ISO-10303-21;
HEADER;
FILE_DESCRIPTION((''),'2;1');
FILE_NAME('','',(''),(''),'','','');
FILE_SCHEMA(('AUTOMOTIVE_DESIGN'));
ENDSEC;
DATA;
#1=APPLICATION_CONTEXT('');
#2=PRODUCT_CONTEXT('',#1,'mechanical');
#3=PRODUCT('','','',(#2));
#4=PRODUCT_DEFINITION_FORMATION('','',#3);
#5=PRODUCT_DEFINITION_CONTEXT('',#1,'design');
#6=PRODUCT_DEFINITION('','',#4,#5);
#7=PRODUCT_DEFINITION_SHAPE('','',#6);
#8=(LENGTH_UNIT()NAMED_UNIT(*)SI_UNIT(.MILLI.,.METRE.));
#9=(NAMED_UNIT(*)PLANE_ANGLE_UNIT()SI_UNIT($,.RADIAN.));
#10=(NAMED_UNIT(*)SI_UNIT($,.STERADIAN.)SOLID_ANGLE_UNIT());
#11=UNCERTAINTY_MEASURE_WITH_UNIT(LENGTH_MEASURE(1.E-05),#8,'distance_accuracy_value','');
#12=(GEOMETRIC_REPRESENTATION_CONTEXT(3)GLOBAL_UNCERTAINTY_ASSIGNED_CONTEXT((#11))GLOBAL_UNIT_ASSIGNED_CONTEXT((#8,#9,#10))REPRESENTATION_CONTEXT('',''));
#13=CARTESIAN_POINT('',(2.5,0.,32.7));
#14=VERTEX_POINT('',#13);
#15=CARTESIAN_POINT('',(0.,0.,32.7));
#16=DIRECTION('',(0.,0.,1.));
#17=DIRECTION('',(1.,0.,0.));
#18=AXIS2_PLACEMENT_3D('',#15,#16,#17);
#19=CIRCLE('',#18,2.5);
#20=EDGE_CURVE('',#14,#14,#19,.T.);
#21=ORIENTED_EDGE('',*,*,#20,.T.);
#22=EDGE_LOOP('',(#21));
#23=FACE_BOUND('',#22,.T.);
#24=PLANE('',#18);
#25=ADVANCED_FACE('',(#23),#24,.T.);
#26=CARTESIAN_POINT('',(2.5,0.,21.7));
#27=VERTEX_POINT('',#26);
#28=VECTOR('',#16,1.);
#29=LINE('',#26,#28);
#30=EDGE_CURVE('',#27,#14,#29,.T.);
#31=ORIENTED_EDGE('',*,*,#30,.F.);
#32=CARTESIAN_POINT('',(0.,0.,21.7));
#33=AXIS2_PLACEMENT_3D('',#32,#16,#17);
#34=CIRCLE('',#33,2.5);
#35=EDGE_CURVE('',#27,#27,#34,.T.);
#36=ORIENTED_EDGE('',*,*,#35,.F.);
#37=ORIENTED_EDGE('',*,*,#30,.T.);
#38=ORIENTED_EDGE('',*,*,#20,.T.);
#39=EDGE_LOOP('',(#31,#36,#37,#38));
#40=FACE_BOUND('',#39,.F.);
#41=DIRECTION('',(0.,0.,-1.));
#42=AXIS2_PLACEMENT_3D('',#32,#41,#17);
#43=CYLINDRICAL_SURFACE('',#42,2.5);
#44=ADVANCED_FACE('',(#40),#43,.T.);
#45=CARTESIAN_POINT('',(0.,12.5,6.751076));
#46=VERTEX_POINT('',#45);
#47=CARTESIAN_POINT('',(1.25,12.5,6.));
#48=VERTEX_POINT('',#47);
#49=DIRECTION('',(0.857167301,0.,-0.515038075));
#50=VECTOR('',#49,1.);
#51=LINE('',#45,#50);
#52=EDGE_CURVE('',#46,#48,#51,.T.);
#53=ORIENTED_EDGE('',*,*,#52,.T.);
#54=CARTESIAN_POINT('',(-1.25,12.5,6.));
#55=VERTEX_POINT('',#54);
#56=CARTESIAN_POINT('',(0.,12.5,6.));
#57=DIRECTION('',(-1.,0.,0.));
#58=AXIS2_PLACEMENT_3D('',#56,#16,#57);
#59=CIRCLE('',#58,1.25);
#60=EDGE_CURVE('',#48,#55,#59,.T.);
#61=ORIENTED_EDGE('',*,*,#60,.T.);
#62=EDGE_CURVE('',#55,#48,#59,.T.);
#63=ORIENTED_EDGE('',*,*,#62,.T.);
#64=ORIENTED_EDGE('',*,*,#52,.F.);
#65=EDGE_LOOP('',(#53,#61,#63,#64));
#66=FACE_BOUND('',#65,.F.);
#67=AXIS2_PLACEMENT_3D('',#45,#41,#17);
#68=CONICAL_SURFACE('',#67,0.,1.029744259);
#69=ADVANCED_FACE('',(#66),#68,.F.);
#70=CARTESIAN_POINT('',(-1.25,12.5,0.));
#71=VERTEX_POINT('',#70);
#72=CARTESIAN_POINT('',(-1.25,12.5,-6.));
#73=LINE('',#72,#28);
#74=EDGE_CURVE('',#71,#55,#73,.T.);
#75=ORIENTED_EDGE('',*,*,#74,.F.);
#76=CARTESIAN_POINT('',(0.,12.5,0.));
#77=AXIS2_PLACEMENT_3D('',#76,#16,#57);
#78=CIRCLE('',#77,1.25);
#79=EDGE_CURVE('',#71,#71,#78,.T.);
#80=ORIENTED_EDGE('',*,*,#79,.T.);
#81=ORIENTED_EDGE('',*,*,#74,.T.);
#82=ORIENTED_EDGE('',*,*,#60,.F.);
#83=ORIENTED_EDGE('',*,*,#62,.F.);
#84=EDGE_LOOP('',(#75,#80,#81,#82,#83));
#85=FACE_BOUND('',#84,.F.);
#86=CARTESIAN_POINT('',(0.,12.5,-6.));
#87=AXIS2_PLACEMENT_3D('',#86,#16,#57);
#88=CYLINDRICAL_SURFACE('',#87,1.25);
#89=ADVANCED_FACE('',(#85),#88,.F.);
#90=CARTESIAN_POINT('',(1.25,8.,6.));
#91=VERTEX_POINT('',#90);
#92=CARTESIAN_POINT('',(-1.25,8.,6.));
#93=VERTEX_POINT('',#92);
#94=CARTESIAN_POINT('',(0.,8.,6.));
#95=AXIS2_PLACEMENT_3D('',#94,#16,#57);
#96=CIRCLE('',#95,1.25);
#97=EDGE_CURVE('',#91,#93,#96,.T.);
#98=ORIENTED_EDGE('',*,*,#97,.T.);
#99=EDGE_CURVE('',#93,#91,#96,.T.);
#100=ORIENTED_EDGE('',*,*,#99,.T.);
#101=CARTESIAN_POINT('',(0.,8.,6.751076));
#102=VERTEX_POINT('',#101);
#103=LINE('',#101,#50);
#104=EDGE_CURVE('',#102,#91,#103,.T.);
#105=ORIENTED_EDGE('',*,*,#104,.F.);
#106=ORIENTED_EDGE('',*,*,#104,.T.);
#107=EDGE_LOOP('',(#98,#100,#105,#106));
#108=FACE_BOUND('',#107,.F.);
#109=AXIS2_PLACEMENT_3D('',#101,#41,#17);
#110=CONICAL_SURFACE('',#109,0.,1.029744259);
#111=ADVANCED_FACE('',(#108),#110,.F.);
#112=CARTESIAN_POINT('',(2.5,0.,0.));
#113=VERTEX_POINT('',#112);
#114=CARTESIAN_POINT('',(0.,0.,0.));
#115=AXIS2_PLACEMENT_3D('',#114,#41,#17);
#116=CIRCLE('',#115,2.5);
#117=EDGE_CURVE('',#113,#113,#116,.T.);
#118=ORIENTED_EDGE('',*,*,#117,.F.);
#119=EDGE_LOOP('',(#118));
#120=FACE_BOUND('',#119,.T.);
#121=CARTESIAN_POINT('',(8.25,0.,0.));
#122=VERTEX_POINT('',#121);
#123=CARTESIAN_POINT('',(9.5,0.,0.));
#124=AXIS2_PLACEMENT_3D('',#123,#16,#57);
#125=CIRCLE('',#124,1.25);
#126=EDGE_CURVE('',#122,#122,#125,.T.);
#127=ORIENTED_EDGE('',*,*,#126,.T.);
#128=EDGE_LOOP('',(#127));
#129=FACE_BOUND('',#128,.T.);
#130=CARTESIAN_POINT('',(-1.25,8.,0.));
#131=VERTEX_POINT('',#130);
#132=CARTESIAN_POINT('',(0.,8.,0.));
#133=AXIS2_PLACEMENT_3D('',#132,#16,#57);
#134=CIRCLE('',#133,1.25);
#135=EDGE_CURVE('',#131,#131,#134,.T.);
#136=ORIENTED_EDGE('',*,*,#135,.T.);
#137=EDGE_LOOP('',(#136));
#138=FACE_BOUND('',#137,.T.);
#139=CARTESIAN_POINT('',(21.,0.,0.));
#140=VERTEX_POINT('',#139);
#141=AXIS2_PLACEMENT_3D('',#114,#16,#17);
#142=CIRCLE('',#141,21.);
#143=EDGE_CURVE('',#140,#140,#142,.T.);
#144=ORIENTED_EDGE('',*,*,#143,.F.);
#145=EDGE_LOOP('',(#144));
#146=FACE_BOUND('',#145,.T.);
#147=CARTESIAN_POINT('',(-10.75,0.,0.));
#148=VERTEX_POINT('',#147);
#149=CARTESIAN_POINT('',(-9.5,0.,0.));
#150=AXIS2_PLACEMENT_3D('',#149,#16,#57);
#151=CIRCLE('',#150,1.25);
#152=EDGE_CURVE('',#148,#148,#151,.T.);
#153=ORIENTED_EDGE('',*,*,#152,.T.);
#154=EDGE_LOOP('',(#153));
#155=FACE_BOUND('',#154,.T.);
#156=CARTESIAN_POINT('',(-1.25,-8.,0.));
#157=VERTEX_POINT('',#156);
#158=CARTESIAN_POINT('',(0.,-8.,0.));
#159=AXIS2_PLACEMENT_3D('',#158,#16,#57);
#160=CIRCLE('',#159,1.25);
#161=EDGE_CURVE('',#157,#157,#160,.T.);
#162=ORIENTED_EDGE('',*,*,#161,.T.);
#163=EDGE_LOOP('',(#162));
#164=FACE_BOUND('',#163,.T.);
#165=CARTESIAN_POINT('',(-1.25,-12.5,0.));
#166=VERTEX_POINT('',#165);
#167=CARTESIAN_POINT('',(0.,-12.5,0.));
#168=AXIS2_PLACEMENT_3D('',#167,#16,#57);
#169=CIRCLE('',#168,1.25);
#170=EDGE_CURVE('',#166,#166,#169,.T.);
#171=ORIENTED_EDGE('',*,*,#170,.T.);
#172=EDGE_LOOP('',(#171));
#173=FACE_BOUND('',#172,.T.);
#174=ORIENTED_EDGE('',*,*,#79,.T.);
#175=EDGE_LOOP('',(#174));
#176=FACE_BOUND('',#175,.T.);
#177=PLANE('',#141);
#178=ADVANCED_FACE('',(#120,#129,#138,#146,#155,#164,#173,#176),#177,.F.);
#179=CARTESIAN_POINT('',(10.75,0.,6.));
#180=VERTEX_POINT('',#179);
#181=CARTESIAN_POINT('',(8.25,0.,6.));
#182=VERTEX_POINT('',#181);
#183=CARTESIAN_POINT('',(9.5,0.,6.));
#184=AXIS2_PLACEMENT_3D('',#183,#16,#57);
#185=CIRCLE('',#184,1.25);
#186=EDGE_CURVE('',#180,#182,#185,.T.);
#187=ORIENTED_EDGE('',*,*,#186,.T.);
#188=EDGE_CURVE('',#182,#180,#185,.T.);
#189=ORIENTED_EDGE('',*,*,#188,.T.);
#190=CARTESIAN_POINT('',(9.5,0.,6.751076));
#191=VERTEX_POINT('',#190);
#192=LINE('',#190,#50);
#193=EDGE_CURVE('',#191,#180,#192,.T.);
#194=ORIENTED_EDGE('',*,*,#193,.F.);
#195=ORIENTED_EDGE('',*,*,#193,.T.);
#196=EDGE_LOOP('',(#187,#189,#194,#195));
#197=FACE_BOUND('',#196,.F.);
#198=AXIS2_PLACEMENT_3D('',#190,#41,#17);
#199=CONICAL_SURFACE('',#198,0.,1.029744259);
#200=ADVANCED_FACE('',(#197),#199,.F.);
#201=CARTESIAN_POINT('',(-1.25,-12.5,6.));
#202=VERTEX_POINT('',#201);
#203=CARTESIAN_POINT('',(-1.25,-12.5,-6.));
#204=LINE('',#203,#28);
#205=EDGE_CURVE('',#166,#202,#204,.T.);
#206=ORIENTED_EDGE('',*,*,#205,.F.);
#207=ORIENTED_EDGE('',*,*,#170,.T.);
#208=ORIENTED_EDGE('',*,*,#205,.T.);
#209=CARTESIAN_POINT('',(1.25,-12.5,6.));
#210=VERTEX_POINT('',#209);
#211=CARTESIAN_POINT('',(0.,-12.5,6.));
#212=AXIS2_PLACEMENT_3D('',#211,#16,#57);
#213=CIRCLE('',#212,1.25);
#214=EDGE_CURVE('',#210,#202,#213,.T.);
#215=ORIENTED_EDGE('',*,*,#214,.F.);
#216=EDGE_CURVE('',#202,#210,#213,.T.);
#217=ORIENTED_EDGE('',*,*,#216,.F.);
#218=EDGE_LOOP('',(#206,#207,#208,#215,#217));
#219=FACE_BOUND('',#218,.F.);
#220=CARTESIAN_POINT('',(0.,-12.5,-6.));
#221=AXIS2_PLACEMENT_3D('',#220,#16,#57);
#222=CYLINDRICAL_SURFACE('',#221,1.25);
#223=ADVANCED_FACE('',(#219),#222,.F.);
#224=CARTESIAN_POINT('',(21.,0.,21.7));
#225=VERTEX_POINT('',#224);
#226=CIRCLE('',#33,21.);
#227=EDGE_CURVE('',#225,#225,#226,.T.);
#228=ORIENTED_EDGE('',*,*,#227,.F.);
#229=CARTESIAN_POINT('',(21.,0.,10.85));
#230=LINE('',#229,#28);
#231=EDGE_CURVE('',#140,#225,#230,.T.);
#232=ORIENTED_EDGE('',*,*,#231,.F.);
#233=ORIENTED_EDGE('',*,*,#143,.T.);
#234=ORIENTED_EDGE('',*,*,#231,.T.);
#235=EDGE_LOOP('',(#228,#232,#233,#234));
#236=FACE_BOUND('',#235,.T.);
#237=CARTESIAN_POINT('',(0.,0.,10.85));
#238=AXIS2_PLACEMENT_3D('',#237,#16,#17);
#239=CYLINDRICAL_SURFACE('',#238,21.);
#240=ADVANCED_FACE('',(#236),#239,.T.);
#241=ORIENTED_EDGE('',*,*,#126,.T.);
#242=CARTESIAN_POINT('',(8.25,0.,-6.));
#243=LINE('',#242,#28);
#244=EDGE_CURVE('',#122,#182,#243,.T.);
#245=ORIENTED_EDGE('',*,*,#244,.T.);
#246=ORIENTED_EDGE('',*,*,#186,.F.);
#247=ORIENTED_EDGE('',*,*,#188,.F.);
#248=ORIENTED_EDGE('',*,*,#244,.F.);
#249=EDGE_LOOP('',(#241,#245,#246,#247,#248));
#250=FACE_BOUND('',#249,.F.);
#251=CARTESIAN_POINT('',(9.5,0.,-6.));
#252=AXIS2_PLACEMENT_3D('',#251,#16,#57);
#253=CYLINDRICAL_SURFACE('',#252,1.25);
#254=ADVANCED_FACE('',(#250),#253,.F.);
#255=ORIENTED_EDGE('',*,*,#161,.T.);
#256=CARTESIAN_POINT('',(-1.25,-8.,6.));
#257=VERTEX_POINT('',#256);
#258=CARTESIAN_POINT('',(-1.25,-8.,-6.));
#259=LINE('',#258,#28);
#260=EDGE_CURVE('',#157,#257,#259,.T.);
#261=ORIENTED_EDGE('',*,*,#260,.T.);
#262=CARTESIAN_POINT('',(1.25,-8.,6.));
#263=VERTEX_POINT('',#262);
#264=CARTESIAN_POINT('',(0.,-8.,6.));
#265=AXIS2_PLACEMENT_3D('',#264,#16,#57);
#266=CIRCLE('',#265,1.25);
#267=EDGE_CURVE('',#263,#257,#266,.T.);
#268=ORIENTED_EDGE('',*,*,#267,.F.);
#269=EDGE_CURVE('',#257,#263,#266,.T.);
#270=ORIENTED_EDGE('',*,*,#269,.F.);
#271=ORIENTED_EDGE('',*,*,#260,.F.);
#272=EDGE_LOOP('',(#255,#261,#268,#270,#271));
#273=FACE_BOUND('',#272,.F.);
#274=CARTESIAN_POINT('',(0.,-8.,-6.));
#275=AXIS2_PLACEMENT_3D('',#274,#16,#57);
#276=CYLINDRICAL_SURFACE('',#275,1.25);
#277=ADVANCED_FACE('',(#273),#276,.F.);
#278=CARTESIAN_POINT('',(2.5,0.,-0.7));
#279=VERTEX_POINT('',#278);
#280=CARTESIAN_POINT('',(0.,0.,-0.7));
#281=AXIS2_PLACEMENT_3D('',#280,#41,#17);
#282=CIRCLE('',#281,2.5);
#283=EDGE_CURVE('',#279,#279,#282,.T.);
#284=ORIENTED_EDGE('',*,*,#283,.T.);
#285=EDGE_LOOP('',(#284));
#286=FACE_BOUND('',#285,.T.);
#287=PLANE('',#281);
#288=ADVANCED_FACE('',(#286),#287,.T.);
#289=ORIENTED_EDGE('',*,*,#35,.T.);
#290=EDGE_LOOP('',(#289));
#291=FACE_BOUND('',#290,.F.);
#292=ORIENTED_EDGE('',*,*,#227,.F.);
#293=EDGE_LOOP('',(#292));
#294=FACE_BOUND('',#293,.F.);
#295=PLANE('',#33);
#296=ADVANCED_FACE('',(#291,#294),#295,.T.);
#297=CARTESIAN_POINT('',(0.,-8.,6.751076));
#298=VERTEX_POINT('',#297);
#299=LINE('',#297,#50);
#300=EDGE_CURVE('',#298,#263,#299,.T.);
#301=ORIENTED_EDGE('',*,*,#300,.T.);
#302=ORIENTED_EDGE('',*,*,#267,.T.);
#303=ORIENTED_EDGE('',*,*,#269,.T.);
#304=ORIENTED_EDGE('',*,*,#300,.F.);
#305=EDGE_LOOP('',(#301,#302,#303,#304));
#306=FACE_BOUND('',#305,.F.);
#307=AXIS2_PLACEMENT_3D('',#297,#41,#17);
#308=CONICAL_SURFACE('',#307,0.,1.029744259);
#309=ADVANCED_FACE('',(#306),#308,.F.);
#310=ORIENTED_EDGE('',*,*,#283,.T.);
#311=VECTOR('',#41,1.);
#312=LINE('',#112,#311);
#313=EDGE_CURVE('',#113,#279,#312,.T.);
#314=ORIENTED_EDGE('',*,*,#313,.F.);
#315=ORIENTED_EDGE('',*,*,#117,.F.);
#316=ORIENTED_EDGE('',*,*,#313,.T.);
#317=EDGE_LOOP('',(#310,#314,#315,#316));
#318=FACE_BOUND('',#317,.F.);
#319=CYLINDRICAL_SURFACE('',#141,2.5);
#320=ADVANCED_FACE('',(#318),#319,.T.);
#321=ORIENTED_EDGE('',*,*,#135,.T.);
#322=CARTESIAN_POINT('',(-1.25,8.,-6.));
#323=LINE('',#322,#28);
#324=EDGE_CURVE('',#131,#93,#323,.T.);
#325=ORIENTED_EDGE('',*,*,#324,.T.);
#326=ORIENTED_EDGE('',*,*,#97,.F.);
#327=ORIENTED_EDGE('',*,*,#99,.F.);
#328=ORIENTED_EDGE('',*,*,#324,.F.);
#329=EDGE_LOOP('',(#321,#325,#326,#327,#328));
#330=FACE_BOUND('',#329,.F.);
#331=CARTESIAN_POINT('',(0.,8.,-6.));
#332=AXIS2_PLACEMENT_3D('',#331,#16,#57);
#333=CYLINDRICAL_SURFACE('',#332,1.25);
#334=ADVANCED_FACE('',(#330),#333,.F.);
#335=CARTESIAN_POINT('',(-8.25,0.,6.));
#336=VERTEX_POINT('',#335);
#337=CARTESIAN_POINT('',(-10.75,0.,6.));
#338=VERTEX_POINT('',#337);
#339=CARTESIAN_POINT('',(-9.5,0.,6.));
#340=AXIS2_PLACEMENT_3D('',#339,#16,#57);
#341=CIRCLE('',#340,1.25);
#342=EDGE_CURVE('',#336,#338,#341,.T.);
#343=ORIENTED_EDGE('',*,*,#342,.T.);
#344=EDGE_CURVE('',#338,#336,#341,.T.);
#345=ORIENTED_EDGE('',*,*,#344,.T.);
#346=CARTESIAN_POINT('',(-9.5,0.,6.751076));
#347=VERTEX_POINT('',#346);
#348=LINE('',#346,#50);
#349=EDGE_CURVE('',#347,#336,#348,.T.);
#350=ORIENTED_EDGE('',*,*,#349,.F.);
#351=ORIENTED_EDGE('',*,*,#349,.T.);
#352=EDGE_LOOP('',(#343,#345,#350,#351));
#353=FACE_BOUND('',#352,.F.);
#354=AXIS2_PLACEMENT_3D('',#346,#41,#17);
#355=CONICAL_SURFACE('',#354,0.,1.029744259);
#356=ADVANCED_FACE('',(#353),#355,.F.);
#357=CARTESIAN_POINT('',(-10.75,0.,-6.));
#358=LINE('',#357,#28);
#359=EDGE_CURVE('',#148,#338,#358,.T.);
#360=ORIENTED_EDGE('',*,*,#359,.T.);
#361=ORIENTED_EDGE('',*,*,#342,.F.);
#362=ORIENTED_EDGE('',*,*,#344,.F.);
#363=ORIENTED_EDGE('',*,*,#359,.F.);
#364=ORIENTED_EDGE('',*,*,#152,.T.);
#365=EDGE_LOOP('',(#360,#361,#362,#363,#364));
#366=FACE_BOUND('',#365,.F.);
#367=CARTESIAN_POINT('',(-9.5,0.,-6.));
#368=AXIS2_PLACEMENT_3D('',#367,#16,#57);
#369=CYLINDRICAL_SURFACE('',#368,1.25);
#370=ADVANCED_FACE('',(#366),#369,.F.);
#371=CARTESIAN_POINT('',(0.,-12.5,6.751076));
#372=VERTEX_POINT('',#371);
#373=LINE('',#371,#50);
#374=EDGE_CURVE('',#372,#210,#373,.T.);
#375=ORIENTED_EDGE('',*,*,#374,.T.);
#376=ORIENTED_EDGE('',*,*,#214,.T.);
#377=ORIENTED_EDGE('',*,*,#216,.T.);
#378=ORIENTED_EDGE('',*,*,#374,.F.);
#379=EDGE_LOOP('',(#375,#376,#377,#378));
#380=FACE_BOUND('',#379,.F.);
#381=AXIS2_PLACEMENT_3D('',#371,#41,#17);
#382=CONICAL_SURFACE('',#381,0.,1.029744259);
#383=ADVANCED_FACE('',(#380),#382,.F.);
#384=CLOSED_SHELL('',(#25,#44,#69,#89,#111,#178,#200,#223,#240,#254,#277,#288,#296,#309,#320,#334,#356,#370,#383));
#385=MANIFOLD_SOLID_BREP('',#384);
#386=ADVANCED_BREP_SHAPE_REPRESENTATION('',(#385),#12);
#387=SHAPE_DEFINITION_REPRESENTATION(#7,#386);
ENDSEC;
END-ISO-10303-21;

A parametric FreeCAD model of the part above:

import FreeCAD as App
import Part
import Sketcher

V = App.Vector
Q = App.Units.Quantity

doc = App.newDocument("Part")
body = doc.addObject("PartDesign::Body", "Body")

sketch1 = doc.addObject("Sketcher::SketchObject", "Sketch")
body.addObject(sketch1)
sketch1.AttachmentSupport = (doc.XZ_Plane, [""])
sketch1.MapMode = "FlatFace"
sketch1.addGeometry(Part.LineSegment(V(0, 22, 0), V(0, 0, 0)), False)
sketch1.addGeometry(Part.LineSegment(V(0, 0, 0), V(21, 0, 0)), False)
sketch1.addGeometry(Part.LineSegment(V(21, 0, 0), V(21, 22, 0)), False)
sketch1.addGeometry(Part.LineSegment(V(21, 22, 0), V(0, 22, 0)), False)
sketch1.addConstraint(Sketcher.Constraint("Coincident", 0, 2, 1, 1))
sketch1.addConstraint(Sketcher.Constraint("Coincident", 1, 2, 2, 1))
sketch1.addConstraint(Sketcher.Constraint("Coincident", 2, 2, 3, 1))
sketch1.addConstraint(Sketcher.Constraint("Coincident", 3, 2, 0, 1))
sketch1.addConstraint(Sketcher.Constraint("Vertical", 0))
sketch1.addConstraint(Sketcher.Constraint("Horizontal", 1))
sketch1.addConstraint(Sketcher.Constraint("Vertical", 2))
sketch1.addConstraint(Sketcher.Constraint("Horizontal", 3))
sketch1.addConstraint(Sketcher.Constraint("Coincident", 0, 2, -1, 1))
sketch1.addConstraint(Sketcher.Constraint("DistanceX", 1, 1, 1, 2, Q("21 mm")))
sketch1.addConstraint(Sketcher.Constraint("DistanceY", 0, 2, 0, 1, Q("21.7 mm")))
revolution = doc.addObject("PartDesign::Revolution", "Revolution")
body.addObject(revolution)
revolution.Profile = sketch1
revolution.ReferenceAxis = (sketch1, ["V_Axis"])
revolution.Angle = 360

sketch2 = doc.addObject("Sketcher::SketchObject", "Sketch001")
body.addObject(sketch2)
sketch2.AttachmentSupport = (doc.XY_Plane, [""])
sketch2.MapMode = "FlatFace"
sketch2.addGeometry(Part.Circle(V(0, -12.5, 0), V(0, 0, 1), 1.2), False)
sketch2.addGeometry(Part.Circle(V(0, -8, 0), V(0, 0, 1), 1.2), False)
sketch2.addGeometry(Part.Circle(V(-9.5, 0, 0), V(0, 0, 1), 1.2), False)
sketch2.addGeometry(Part.Circle(V(9.5, 0, 0), V(0, 0, 1), 1.2), False)
sketch2.addGeometry(Part.Circle(V(0, 8, 0), V(0, 0, 1), 1.2), False)
sketch2.addGeometry(Part.Circle(V(0, 12.5, 0), V(0, 0, 1), 1.2), False)
sketch2.addConstraint(Sketcher.Constraint("Equal", 0, 1))
sketch2.addConstraint(Sketcher.Constraint("Equal", 1, 2))
sketch2.addConstraint(Sketcher.Constraint("Equal", 2, 3))
sketch2.addConstraint(Sketcher.Constraint("Equal", 3, 4))
sketch2.addConstraint(Sketcher.Constraint("Equal", 4, 5))
sketch2.addConstraint(Sketcher.Constraint("Symmetric", 2, 3, 3, 3, -1, 1))
sketch2.addConstraint(Sketcher.Constraint("Symmetric", 1, 3, 4, 3, -1, 1))
sketch2.addConstraint(Sketcher.Constraint("Symmetric", 0, 3, 5, 3, -1, 1))
sketch2.addConstraint(Sketcher.Constraint("PointOnObject", 0, 3, -2))
sketch2.addConstraint(Sketcher.Constraint("PointOnObject", 1, 3, -2))
sketch2.addConstraint(Sketcher.Constraint("PointOnObject", 2, 3, -1))
sketch2.addConstraint(Sketcher.Constraint("Diameter", 0, Q("2.5 mm")))
sketch2.addConstraint(Sketcher.Constraint("DistanceY", 1, 3, -1, 1, Q("8 mm")))
sketch2.addConstraint(Sketcher.Constraint("DistanceX", 2, 3, 3, 3, Q("19 mm")))
sketch2.addConstraint(Sketcher.Constraint("DistanceY", 0, 3, 5, 3, Q("25 mm")))
doc.recompute()
hole = doc.addObject("PartDesign::Hole", "Hole")
body.addObject(hole)
hole.Profile = sketch2
hole.ThreadType = "None"
hole.Diameter = 2.5
hole.DepthType = "Dimension"
hole.Depth = 6
hole.DrillPoint = "Angled"
hole.DrillPointAngle = 118
hole.Reversed = True

sketch3 = doc.addObject("Sketcher::SketchObject", "Sketch002")
body.addObject(sketch3)
sketch3.AttachmentSupport = (doc.XY_Plane, [""])
sketch3.MapMode = "FlatFace"
sketch3.AttachmentOffset = App.Placement(V(0, 0, 21.7), App.Rotation())
sketch3.addGeometry(Part.Circle(V(0, 0, 0), V(0, 0, 1), 2.5), False)
sketch3.addConstraint(Sketcher.Constraint("Coincident", 0, 3, -1, 1))
sketch3.addConstraint(Sketcher.Constraint("Diameter", 0, Q("5 mm")))
pad1 = doc.addObject("PartDesign::Pad", "Pad")
body.addObject(pad1)
pad1.Profile = sketch3
pad1.Length = 11

sketch4 = doc.addObject("Sketcher::SketchObject", "Sketch003")
body.addObject(sketch4)
sketch4.AttachmentSupport = (doc.XY_Plane, [""])
sketch4.MapMode = "FlatFace"
sketch4.addGeometry(Part.Circle(V(0, 0, 0), V(0, 0, 1), 2.5), False)
sketch4.addConstraint(Sketcher.Constraint("Coincident", 0, 3, -1, 1))
sketch4.addConstraint(Sketcher.Constraint("Diameter", 0, Q("5 mm")))
pad2 = doc.addObject("PartDesign::Pad", "Pad001")
body.addObject(pad2)
pad2.Profile = sketch4
pad2.Length = 0.7
pad2.Reversed = True

doc.recompute()
